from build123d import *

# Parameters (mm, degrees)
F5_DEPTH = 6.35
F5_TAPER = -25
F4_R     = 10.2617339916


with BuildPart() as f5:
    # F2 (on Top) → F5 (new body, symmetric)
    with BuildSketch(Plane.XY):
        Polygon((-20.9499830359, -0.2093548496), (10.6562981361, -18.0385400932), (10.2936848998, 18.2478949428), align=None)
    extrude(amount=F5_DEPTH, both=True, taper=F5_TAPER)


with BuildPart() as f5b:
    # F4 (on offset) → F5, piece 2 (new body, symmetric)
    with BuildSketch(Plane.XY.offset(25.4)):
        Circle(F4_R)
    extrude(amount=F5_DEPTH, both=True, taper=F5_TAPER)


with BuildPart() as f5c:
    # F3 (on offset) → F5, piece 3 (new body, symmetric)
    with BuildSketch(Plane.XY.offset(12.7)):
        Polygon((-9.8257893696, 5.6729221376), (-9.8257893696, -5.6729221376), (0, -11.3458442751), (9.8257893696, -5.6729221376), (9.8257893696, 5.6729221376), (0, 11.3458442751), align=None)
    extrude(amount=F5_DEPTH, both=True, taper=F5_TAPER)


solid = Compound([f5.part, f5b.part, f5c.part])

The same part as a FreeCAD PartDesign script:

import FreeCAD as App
import Part
import Sketcher

V = App.Vector
Q = App.Units.Quantity

doc = App.newDocument("Part")
params = doc.addObject("Spreadsheet::Sheet", "Params")
for row, (alias, value) in enumerate([
    ("pad1_length", "0.5 in"),
    ("pad1_taper", "25 deg"),
    ("pad2_length", "0.5 in"),
    ("pad2_taper", "25 deg"),
    ("pad3_length", "0.5 in"),
    ("pad3_taper", "25 deg"),
], start=1):
    params.set(f"A{row}", alias)
    params.set(f"B{row}", "=" + value)
    params.setAlias(f"B{row}", alias)

body = doc.addObject("PartDesign::Body", "Body")

# Sketch on XY plane
sketch1 = body.newObject("Sketcher::SketchObject", "Sketch")
sketch1.AttachmentSupport = (doc.getObject("XY_Plane"), [""])
sketch1.MapMode = "FlatFace"
sketch1.addGeometry(Part.LineSegment(V(-21, 0, 0), V(11, -18, 0)), False)
sketch1.addGeometry(Part.LineSegment(V(11, -18, 0), V(10, 18, 0)), False)
sketch1.addGeometry(Part.LineSegment(V(10, 18, 0), V(-21, 0, 0)), False)
sketch1.addConstraint(Sketcher.Constraint("Coincident", 0, 2, 1, 1))
sketch1.addConstraint(Sketcher.Constraint("Coincident", 1, 2, 2, 1))
sketch1.addConstraint(Sketcher.Constraint("Coincident", 2, 2, 0, 1))
sketch1.addConstraint(Sketcher.Constraint("Equal", 0, 1))
sketch1.addConstraint(Sketcher.Constraint("Equal", 1, 2))
sketch1.addConstraint(Sketcher.Constraint("DistanceY", 0, 2, 1, 2, Q("1.4285998 in")))
sketch1.addConstraint(Sketcher.Constraint("DistanceX", -1, 1, 0, 2, Q("10.656298 mm")))
sketch1.addConstraint(Sketcher.Constraint("DistanceY", 0, 2, -1, 1, Q("18.03854 mm")))
sketch1.addConstraint(Sketcher.Constraint("DistanceX", 2, 2, 0, 2, Q("31.606281 mm")))
pad1 = body.newObject("PartDesign::Pad", "Pad")
pad1.Profile = sketch1
pad1.setExpression("Length", "Params.pad1_length")
pad1.Midplane = True
pad1.setExpression("TaperAngle", "Params.pad1_taper")
body2 = doc.addObject("PartDesign::Body", "Body001")

# Sketch on XY plane
sketch2 = body2.newObject("Sketcher::SketchObject", "Sketch001")
sketch2.AttachmentSupport = (doc.getObject("XY_Plane001"), [""])
sketch2.MapMode = "FlatFace"
sketch2.AttachmentOffset = App.Placement(V(0, 0, 1 * 25.4), App.Rotation())
sketch2.addGeometry(Part.Circle(V(0, 0, 0), V(0, 0, 1), 10), False)
sketch2.addConstraint(Sketcher.Constraint("Coincident", 0, 3, -1, 1))
sketch2.addConstraint(Sketcher.Constraint("Diameter", 0, Q("20.523468 mm")))
pad2 = body2.newObject("PartDesign::Pad", "Pad001")
pad2.Profile = sketch2
pad2.setExpression("Length", "Params.pad2_length")
pad2.Midplane = True
pad2.setExpression("TaperAngle", "Params.pad2_taper")
body3 = doc.addObject("PartDesign::Body", "Body002")

# Sketch on XY plane
sketch3 = body3.newObject("Sketcher::SketchObject", "Sketch002")
sketch3.AttachmentSupport = (doc.getObject("XY_Plane002"), [""])
sketch3.MapMode = "FlatFace"
sketch3.AttachmentOffset = App.Placement(V(0, 0, 0.5 * 25.4), App.Rotation())
sketch3.addGeometry(Part.LineSegment(V(-10, 6, 0), V(-10, -6, 0)), False)
sketch3.addGeometry(Part.LineSegment(V(-10, -6, 0), V(0, -11, 0)), False)
sketch3.addGeometry(Part.LineSegment(V(0, -11, 0), V(10, -6, 0)), False)
sketch3.addGeometry(Part.LineSegment(V(10, -6, 0), V(10, 6, 0)), False)
sketch3.addGeometry(Part.LineSegment(V(10, 6, 0), V(0, 11, 0)), False)
sketch3.addGeometry(Part.LineSegment(V(0, 11, 0), V(-10, 6, 0)), False)
sketch3.addConstraint(Sketcher.Constraint("Coincident", 0, 2, 1, 1))
sketch3.addConstraint(Sketcher.Constraint("Coincident", 1, 2, 2, 1))
sketch3.addConstraint(Sketcher.Constraint("Coincident", 2, 2, 3, 1))
sketch3.addConstraint(Sketcher.Constraint("Coincident", 3, 2, 4, 1))
sketch3.addConstraint(Sketcher.Constraint("Coincident", 4, 2, 5, 1))
sketch3.addConstraint(Sketcher.Constraint("Coincident", 5, 2, 0, 1))
sketch3.addConstraint(Sketcher.Constraint("Vertical", 0))
sketch3.addConstraint(Sketcher.Constraint("Vertical", 3))
sketch3.addConstraint(Sketcher.Constraint("Symmetric", 0, 2, 3, 2, -1, 1))
sketch3.addConstraint(Sketcher.Constraint("Symmetric", 1, 2, 4, 2, -1, 1))
sketch3.addConstraint(Sketcher.Constraint("PointOnObject", 1, 2, -2))
sketch3.addConstraint(Sketcher.Constraint("Parallel", 2, 5))
sketch3.addConstraint(Sketcher.Constraint("Horizontal", 0, 2, 2, 2))
sketch3.addConstraint(Sketcher.Constraint("Angle", 1, Q("-30 deg")))
sketch3.addConstraint(Sketcher.Constraint("DistanceY", 0, 2, 0, 1, Q("11.345844 mm")))
sketch3.addConstraint(Sketcher.Constraint("DistanceX", 0, 2, -1, 1, Q("9.825789 mm")))
pad3 = body3.newObject("PartDesign::Pad", "Pad002")
pad3.Profile = sketch3
pad3.setExpression("Length", "Params.pad3_length")
pad3.Midplane = True
pad3.setExpression("TaperAngle", "Params.pad3_taper")

doc.recompute()
